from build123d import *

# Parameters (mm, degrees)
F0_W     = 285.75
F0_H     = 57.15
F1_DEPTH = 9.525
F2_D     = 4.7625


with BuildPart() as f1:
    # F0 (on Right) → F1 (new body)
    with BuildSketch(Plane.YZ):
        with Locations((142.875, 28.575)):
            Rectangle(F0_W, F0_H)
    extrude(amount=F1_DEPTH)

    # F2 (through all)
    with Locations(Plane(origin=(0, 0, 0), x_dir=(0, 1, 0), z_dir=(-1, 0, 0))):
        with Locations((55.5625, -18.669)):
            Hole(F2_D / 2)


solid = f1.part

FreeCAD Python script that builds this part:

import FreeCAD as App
import Part
import Sketcher
from FreeCAD import Vector
Q = App.Units.Quantity


def add_polygon(sketch, points):
    """Adds a closed chain of lines whose ends are joined by coincident constraints."""
    first, n = sketch.GeometryCount, len(points)
    for a, b in zip(points, points[1:] + points[:1]):
        sketch.addGeometry(Part.LineSegment(App.Vector(*a, 0), App.Vector(*b, 0)), False)
    for i in range(n):
        sketch.addConstraint(Sketcher.Constraint("Coincident", first + i, 2, first + (i + 1) % n, 1))

doc = App.newDocument("Part")
body = doc.addObject("PartDesign::Body", "Body")

# Sketch on YZ plane
sketch1 = body.newObject("Sketcher::SketchObject", "Sketch")
sketch1.AttachmentSupport = (doc.getObject("YZ_Plane"), [""])
sketch1.MapMode = "FlatFace"
add_polygon(sketch1, [(0, 57), (0, 0), (286, 0), (286, 57)])  # lines 0-3
sketch1.addConstraint([
    Sketcher.Constraint("Vertical", 0),
    Sketcher.Constraint("Horizontal", 1),
    Sketcher.Constraint("Vertical", 2),
    Sketcher.Constraint("Horizontal", 3),
    Sketcher.Constraint("Coincident", 0, 2, -1, 1),
    Sketcher.Constraint("DistanceX", 1, 1, 1, 2, Q("11.25 in")),
    Sketcher.Constraint("DistanceY", 0, 2, 0, 1, Q("2.25 in")),
])
pad1 = body.newObject("PartDesign::Pad", "Pad")
pad1.Profile = sketch1
pad1.Length = Q("0.375 in")

# Sketch on YZ plane
sketch2 = body.newObject("Sketcher::SketchObject", "Sketch001")
sketch2.AttachmentSupport = (doc.getObject("YZ_Plane"), [""])
sketch2.MapMode = "FlatFace"
sketch2.addGeometry(Part.Circle(Vector(55.6, 18.7, 0), Vector(0, 0, 1), 2.4), False)
sketch2.addConstraint([
    Sketcher.Constraint("Diameter", 0, Q("0.1875 in")),
    Sketcher.Constraint("DistanceX", -1, 1, 0, 3, Q("2.1875 in")),
    Sketcher.Constraint("DistanceY", -1, 1, 0, 3, Q("0.735 in")),
])
doc.recompute()
hole = body.newObject("PartDesign::Hole", "Hole")
hole.Profile = sketch2
hole.ThreadType = "None"
hole.Diameter = Q("0.1875 in")
hole.DepthType = "ThroughAll"
hole.Reversed = True

doc.recompute()
